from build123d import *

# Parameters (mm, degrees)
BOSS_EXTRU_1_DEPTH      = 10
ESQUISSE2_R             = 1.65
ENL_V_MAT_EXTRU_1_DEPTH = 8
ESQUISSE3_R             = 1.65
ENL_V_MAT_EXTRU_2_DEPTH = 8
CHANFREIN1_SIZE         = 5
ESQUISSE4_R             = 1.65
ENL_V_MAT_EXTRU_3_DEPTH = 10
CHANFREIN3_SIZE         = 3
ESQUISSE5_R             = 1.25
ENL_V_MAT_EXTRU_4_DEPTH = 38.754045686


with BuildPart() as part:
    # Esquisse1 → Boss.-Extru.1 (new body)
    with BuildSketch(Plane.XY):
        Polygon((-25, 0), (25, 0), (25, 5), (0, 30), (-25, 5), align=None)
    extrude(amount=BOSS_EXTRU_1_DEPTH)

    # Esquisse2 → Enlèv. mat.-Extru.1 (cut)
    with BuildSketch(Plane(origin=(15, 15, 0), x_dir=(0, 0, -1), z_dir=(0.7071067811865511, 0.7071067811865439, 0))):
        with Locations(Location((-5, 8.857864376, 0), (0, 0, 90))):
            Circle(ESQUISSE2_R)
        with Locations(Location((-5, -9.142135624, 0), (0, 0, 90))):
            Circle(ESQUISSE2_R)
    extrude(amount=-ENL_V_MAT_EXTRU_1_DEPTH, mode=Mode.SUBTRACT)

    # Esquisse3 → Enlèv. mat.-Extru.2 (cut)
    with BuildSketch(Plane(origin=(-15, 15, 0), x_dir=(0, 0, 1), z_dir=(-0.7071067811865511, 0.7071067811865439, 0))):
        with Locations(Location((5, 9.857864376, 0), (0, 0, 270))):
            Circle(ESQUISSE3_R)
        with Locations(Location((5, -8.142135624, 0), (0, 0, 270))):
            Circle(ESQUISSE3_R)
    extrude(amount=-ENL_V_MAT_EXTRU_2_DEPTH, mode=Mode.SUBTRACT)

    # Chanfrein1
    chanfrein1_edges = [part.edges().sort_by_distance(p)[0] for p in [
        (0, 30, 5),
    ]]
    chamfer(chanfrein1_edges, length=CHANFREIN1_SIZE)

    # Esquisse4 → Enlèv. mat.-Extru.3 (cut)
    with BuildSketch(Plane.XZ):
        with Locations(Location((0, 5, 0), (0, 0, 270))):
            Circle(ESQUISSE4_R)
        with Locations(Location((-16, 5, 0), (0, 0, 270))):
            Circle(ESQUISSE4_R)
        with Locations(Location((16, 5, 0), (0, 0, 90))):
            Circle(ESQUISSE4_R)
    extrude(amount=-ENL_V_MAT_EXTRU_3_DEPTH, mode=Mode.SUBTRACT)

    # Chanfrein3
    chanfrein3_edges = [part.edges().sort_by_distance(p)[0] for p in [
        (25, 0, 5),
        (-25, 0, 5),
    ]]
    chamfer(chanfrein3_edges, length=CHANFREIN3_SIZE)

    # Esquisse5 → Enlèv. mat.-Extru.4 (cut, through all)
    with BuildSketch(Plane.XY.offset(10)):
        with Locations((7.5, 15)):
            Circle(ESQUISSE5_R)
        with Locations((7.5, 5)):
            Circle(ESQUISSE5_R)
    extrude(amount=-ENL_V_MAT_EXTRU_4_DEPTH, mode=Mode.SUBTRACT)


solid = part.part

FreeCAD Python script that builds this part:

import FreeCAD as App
import Part
import Sketcher


def edges_at(feature, points):
    """Names of the edges that pass closest to the given points."""
    edges = feature.Shape.Edges
    near = lambda p: min(range(len(edges)), key=lambda i: edges[i].distToShape(Part.Vertex(*p))[0])
    return sorted({f"Edge{near(p) + 1}" for p in points})

doc = App.newDocument("Part")
params = doc.addObject("Spreadsheet::Sheet", "Params")
for row, (alias, value) in enumerate([
    ("sketch1_width", "50 mm"),
    ("sketch1_height", "5 mm"),
    ("pad1_length", "10 mm"),
    ("sketch2_diameter", "3.3 mm"),
    ("pocket1_length", "8 mm"),
    ("sketch3_diameter", "3.3 mm"),
    ("pocket2_length", "8 mm"),
    ("chamfer_size", "5 mm"),
    ("sketch4_diameter", "3.3 mm"),
    ("pocket3_length", "10 mm"),
    ("chamfer2_size", "3 mm"),
    ("sketch5_diameter", "2.5 mm"),
], start=1):
    params.set(f"A{row}", alias)
    params.set(f"B{row}", "=" + value)
    params.setAlias(f"B{row}", alias)

body = doc.addObject("PartDesign::Body", "Body")

# Sketch on XY plane
sketch1 = body.newObject("Sketcher::SketchObject", "Sketch")
sketch1.AttachmentSupport = (doc.getObject("XY_Plane"), [""])
sketch1.MapMode = "FlatFace"
sketch1.addGeometry([
    Part.LineSegment(App.Vector(-25, 0, 0), App.Vector(25, 0, 0)),  # 0
    Part.LineSegment(App.Vector(25, 0, 0), App.Vector(25, 5, 0)),  # 1
    Part.LineSegment(App.Vector(25, 5, 0), App.Vector(0, 30, 0)),  # 2
    Part.LineSegment(App.Vector(0, 30, 0), App.Vector(-25, 5, 0)),  # 3
    Part.LineSegment(App.Vector(-25, 5, 0), App.Vector(-25, 0, 0)),  # 4
], False)
sketch1.addConstraint([
    Sketcher.Constraint("Coincident", 0, 2, 1, 1),
    Sketcher.Constraint("Coincident", 1, 2, 2, 1),
    Sketcher.Constraint("Coincident", 2, 2, 3, 1),
    Sketcher.Constraint("Coincident", 3, 2, 4, 1),
    Sketcher.Constraint("Coincident", 4, 2, 0, 1),
    Sketcher.Constraint("Horizontal", 0),
    Sketcher.Constraint("Vertical", 1),
    Sketcher.Constraint("Vertical", 4),
    Sketcher.Constraint("Symmetric", 0, 2, 4, 2, -1, 1),
    Sketcher.Constraint("PointOnObject", 2, 2, -2),
    Sketcher.Constraint("Perpendicular", 2, 3),
    Sketcher.Constraint("Horizontal", 1, 2, 3, 2),
    Sketcher.Constraint("DistanceX", 0, 1, 0, 2, 50.0),
    Sketcher.Constraint("DistanceY", 1, 1, 1, 2, 5.0),
])
sketch1.setExpression("Constraints[12]", "Params.sketch1_width")
sketch1.setExpression("Constraints[13]", "Params.sketch1_height")
pad1 = body.newObject("PartDesign::Pad", "Pad")
pad1.Profile = sketch1
pad1.setExpression("Length", "Params.pad1_length")

# Sketch on an angled plane
sketch2 = body.newObject("Sketcher::SketchObject", "Sketch001")
sketch2.Placement = App.Placement(App.Vector(15, 15, 0), App.Rotation(App.Vector(0, 0, -1), App.Vector(-0.707106781, 0.707106781, 0), App.Vector(0.707106781, 0.707106781, 0), "ZXY"))
sketch2.addGeometry([
    Part.Circle(App.Vector(-5, 8.9, 0), App.Vector(0, 0, 1), 1.6),
    Part.Circle(App.Vector(-5, -9.1, 0), App.Vector(0, 0, 1), 1.6),
], False)
sketch2.addConstraint([
    Sketcher.Constraint("Equal", 0, 1),
    Sketcher.Constraint("Vertical", 0, 3, 1, 3),
    Sketcher.Constraint("Diameter", 0, 3.3),
    Sketcher.Constraint("DistanceX", 0, 3, -1, 1, 5.0),
    Sketcher.Constraint("DistanceY", 1, 3, 0, 3, 18.0),
    Sketcher.Constraint("DistanceY", -1, 1, 0, 3, 8.857864),
])
sketch2.setExpression("Constraints[2]", "Params.sketch2_diameter")
pocket1 = body.newObject("PartDesign::Pocket", "Pocket")
pocket1.Profile = sketch2
pocket1.setExpression("Length", "Params.pocket1_length")

# Sketch on an angled plane
sketch3 = body.newObject("Sketcher::SketchObject", "Sketch002")
sketch3.Placement = App.Placement(App.Vector(-15, 15, 0), App.Rotation(App.Vector(0, 0, 1), App.Vector(0.707106781, 0.707106781, 0), App.Vector(-0.707106781, 0.707106781, 0), "ZXY"))
sketch3.addGeometry([
    Part.Circle(App.Vector(5, 9.9, 0), App.Vector(0, 0, 1), 1.6),
    Part.Circle(App.Vector(5, -8.1, 0), App.Vector(0, 0, 1), 1.6),
], False)
sketch3.addConstraint([
    Sketcher.Constraint("Equal", 0, 1),
    Sketcher.Constraint("Vertical", 0, 3, 1, 3),
    Sketcher.Constraint("Diameter", 0, 3.3),
    Sketcher.Constraint("DistanceX", -1, 1, 0, 3, 5.0),
    Sketcher.Constraint("DistanceY", 1, 3, 0, 3, 18.0),
    Sketcher.Constraint("DistanceY", -1, 1, 0, 3, 9.857864),
])
sketch3.setExpression("Constraints[2]", "Params.sketch3_diameter")
pocket2 = body.newObject("PartDesign::Pocket", "Pocket001")
pocket2.Profile = sketch3
pocket2.setExpression("Length", "Params.pocket2_length")
doc.recompute()

chamfer = body.newObject("PartDesign::Chamfer", "Chamfer")
chamfer.Base = (pocket2, edges_at(pocket2, [(0, 30, 5)]))
chamfer.setExpression("Size", "Params.chamfer_size")

# Sketch on XZ plane
sketch4 = body.newObject("Sketcher::SketchObject", "Sketch003")
sketch4.AttachmentSupport = (doc.getObject("XZ_Plane"), [""])
sketch4.MapMode = "FlatFace"
sketch4.addGeometry([
    Part.Circle(App.Vector(0, 5, 0), App.Vector(0, 0, 1), 1.6),
    Part.Circle(App.Vector(-16, 5, 0), App.Vector(0, 0, 1), 1.6),
    Part.Circle(App.Vector(16, 5, 0), App.Vector(0, 0, 1), 1.6),
], False)
sketch4.addConstraint([
    Sketcher.Constraint("Equal", 0, 1),
    Sketcher.Constraint("Equal", 1, 2),
    Sketcher.Constraint("Symmetric", 1, 3, 2, 3, -2),
    Sketcher.Constraint("PointOnObject", 0, 3, -2),
    Sketcher.Constraint("Horizontal", 0, 3, 1, 3),
    Sketcher.Constraint("Diameter", 0, 3.3),
    Sketcher.Constraint("DistanceY", -1, 1, 0, 3, 5.0),
    Sketcher.Constraint("DistanceX", 1, 3, -1, 1, 16.0),
])
sketch4.setExpression("Constraints[5]", "Params.sketch4_diameter")
pocket3 = body.newObject("PartDesign::Pocket", "Pocket002")
pocket3.Profile = sketch4
pocket3.setExpression("Length", "Params.pocket3_length")
doc.recompute()

chamfer2 = body.newObject("PartDesign::Chamfer", "Chamfer001")
chamfer2.Base = (pocket3, edges_at(pocket3, [(25, 0, 5), (-25, 0, 5)]))
chamfer2.setExpression("Size", "Params.chamfer2_size")

# Sketch on XY plane
sketch5 = body.newObject("Sketcher::SketchObject", "Sketch004")
sketch5.AttachmentSupport = (doc.getObject("XY_Plane"), [""])
sketch5.MapMode = "FlatFace"
sketch5.AttachmentOffset = App.Placement(App.Vector(0, 0, 10), App.Rotation())
sketch5.addGeometry([
    Part.Circle(App.Vector(7.5, 15, 0), App.Vector(0, 0, 1), 1.2),
    Part.Circle(App.Vector(7.5, 5, 0), App.Vector(0, 0, 1), 1.2),
], False)
sketch5.addConstraint([
    Sketcher.Constraint("Equal", 0, 1),
    Sketcher.Constraint("Vertical", 0, 3, 1, 3),
    Sketcher.Constraint("Diameter", 0, 2.5),
    Sketcher.Constraint("DistanceY", -1, 1, 0, 3, 15.0),
    Sketcher.Constraint("DistanceY", -1, 1, 1, 3, 5.0),
    Sketcher.Constraint("DistanceX", -1, 1, 0, 3, 7.5),
])
sketch5.setExpression("Constraints[2]", "Params.sketch5_diameter")
pocket4 = body.newObject("PartDesign::Pocket", "Pocket003")
pocket4.Profile = sketch5
pocket4.Type = "ThroughAll"

doc.recompute()
